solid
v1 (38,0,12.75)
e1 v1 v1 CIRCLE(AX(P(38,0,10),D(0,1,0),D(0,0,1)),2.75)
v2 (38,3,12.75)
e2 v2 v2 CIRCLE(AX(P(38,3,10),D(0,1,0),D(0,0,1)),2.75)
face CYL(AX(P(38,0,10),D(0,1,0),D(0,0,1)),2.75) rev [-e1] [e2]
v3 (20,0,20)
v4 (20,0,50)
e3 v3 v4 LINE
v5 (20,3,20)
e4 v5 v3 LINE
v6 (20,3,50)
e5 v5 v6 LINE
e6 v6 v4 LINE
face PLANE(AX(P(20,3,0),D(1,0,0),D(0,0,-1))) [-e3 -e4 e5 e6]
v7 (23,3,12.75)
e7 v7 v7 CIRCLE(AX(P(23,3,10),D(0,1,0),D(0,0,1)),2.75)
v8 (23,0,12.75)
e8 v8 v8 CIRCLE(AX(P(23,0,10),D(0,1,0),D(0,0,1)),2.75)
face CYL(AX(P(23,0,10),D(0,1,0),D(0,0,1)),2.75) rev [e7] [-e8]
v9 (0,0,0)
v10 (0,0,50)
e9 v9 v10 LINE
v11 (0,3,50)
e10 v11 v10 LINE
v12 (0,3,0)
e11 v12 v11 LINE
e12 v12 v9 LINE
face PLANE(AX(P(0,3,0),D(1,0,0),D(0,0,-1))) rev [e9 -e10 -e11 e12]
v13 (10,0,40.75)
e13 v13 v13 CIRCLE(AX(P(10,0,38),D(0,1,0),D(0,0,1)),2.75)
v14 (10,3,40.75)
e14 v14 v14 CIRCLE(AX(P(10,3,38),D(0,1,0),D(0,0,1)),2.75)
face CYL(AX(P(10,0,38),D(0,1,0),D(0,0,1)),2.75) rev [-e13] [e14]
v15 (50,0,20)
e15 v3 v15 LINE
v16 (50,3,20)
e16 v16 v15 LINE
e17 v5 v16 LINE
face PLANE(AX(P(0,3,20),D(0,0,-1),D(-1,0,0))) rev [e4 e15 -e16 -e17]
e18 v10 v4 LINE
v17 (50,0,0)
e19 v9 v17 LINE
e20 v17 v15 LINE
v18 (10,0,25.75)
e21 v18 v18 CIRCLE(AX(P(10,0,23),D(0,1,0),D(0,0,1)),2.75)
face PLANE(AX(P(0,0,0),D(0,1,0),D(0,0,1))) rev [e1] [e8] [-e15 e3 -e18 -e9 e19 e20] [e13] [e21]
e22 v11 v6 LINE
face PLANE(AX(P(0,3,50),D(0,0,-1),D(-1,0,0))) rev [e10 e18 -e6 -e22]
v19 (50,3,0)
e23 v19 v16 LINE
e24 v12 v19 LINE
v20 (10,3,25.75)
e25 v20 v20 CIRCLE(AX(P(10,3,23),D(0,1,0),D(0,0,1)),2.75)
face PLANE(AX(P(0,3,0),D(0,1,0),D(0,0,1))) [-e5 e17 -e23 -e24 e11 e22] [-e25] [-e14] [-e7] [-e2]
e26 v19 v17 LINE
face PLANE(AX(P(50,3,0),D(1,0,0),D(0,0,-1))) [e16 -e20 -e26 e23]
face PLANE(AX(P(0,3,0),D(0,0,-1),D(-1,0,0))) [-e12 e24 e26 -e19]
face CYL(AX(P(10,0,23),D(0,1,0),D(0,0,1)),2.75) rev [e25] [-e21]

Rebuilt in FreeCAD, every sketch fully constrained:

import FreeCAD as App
import Part
import Sketcher

V = App.Vector
Q = App.Units.Quantity


def add_polygon(sketch, points):
    """Adds a closed chain of lines whose ends are joined by coincident constraints."""
    first, n = sketch.GeometryCount, len(points)
    for a, b in zip(points, points[1:] + points[:1]):
        sketch.addGeometry(Part.LineSegment(App.Vector(*a, 0), App.Vector(*b, 0)), False)
    for i in range(n):
        sketch.addConstraint(Sketcher.Constraint("Coincident", first + i, 2, first + (i + 1) % n, 1))

doc = App.newDocument("Part")
body = doc.addObject("PartDesign::Body", "Body")

sketch1 = doc.addObject("Sketcher::SketchObject", "Sketch")
body.addObject(sketch1)
sketch1.AttachmentSupport = (doc.XZ_Plane, [""])
sketch1.MapMode = "FlatFace"
add_polygon(sketch1, [(0, 0), (0, 50), (20, 50), (20, 20), (50, 20), (50, 0)])
sketch1.addConstraint(Sketcher.Constraint("Vertical", 0))
sketch1.addConstraint(Sketcher.Constraint("Horizontal", 1))
sketch1.addConstraint(Sketcher.Constraint("Vertical", 2))
sketch1.addConstraint(Sketcher.Constraint("Horizontal", 3))
sketch1.addConstraint(Sketcher.Constraint("Vertical", 4))
sketch1.addConstraint(Sketcher.Constraint("Horizontal", 5))
sketch1.addConstraint(Sketcher.Constraint("Coincident", 5, 2, -1, 1))
sketch1.addConstraint(Sketcher.Constraint("Equal", 5, 0))
sketch1.addConstraint(Sketcher.Constraint("Equal", 3, 2))
sketch1.addConstraint(Sketcher.Constraint("DistanceX", 1, 1, 1, 2, Q("20 mm")))
sketch1.addConstraint(Sketcher.Constraint("DistanceX", 3, 1, 3, 2, Q("30 mm")))
pad1 = doc.addObject("PartDesign::Pad", "Pad")
body.addObject(pad1)
pad1.Profile = sketch1
pad1.Length = 3
pad1.Reversed = True

sketch2 = doc.addObject("Sketcher::SketchObject", "Sketch001")
body.addObject(sketch2)
sketch2.AttachmentSupport = (doc.XZ_Plane, [""])
sketch2.MapMode = "FlatFace"
sketch2.AttachmentOffset = App.Placement(V(0, 0, -3), App.Rotation())
sketch2.addGeometry(Part.Circle(V(10, 38, 0), V(0, 0, 1), 2.8), False)
sketch2.addGeometry(Part.Circle(V(10, 23, 0), V(0, 0, 1), 2.8), False)
sketch2.addGeometry(Part.Circle(V(38, 10, 0), V(0, 0, 1), 2.8), False)
sketch2.addGeometry(Part.Circle(V(23, 10, 0), V(0, 0, 1), 2.8), False)
sketch2.addConstraint(Sketcher.Constraint("Equal", 0, 1))
sketch2.addConstraint(Sketcher.Constraint("Equal", 1, 2))
sketch2.addConstraint(Sketcher.Constraint("Equal", 2, 3))
sketch2.addConstraint(Sketcher.Constraint("Horizontal", 2, 3, 3, 3))
sketch2.addConstraint(Sketcher.Constraint("Vertical", 0, 3, 1, 3))
sketch2.addConstraint(Sketcher.Constraint("Diameter", 0, Q("5.5 mm")))
sketch2.addConstraint(Sketcher.Constraint("DistanceX", -1, 1, 0, 3, Q("10 mm")))
sketch2.addConstraint(Sketcher.Constraint("DistanceY", -1, 1, 0, 3, Q("38 mm")))
sketch2.addConstraint(Sketcher.Constraint("DistanceY", -1, 1, 1, 3, Q("23 mm")))
sketch2.addConstraint(Sketcher.Constraint("DistanceX", -1, 1, 2, 3, Q("38 mm")))
sketch2.addConstraint(Sketcher.Constraint("DistanceY", -1, 1, 2, 3, Q("10 mm")))
sketch2.addConstraint(Sketcher.Constraint("DistanceX", -1, 1, 3, 3, Q("23 mm")))
pocket1 = doc.addObject("PartDesign::Pocket", "Pocket")
body.addObject(pocket1)
pocket1.Profile = sketch2
pocket1.Length = 3
pocket1.Reversed = True

doc.recompute()
